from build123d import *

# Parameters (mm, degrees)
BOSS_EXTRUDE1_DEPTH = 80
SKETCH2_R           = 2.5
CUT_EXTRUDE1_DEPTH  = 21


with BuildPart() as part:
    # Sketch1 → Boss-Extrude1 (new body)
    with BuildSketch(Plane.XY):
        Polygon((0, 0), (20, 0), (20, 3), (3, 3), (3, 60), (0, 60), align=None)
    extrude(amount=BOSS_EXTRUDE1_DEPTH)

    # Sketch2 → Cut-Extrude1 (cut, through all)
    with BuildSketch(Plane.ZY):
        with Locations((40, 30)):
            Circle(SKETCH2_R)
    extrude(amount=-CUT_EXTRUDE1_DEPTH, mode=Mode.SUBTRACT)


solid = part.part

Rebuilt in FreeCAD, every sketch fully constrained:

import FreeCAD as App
import Part
import Sketcher
from FreeCAD import Vector
Q = App.Units.Quantity

doc = App.newDocument("Part")
body = doc.addObject("PartDesign::Body", "Body")

# Sketch on XY plane
sketch1 = body.newObject("Sketcher::SketchObject", "Sketch")
sketch1.AttachmentSupport = (doc.getObject("XY_Plane"), [""])
sketch1.MapMode = "FlatFace"
sketch1.addGeometry([
    Part.LineSegment(Vector(0, 0, 0), Vector(20, 0, 0)),  # 0
    Part.LineSegment(Vector(20, 0, 0), Vector(20, 3, 0)),  # 1
    Part.LineSegment(Vector(20, 3, 0), Vector(3, 3, 0)),  # 2
    Part.LineSegment(Vector(3, 3, 0), Vector(3, 60, 0)),  # 3
    Part.LineSegment(Vector(3, 60, 0), Vector(0, 60, 0)),  # 4
    Part.LineSegment(Vector(0, 60, 0), Vector(0, 0, 0)),  # 5
], False)
sketch1.addConstraint([
    Sketcher.Constraint("Coincident", 0, 2, 1, 1),
    Sketcher.Constraint("Coincident", 1, 2, 2, 1),
    Sketcher.Constraint("Coincident", 2, 2, 3, 1),
    Sketcher.Constraint("Coincident", 3, 2, 4, 1),
    Sketcher.Constraint("Coincident", 4, 2, 5, 1),
    Sketcher.Constraint("Coincident", 5, 2, 0, 1),
    Sketcher.Constraint("Horizontal", 0),
    Sketcher.Constraint("Vertical", 1),
    Sketcher.Constraint("Horizontal", 2),
    Sketcher.Constraint("Vertical", 3),
    Sketcher.Constraint("Horizontal", 4),
    Sketcher.Constraint("Vertical", 5),
    Sketcher.Constraint("Coincident", 5, 2, -1, 1),
    Sketcher.Constraint("Equal", 4, 1),
    Sketcher.Constraint("DistanceX", 0, 1, 0, 2, Q("20 mm")),
    Sketcher.Constraint("DistanceX", 2, 2, 2, 1, Q("17 mm")),
    Sketcher.Constraint("DistanceY", 3, 1, 3, 2, Q("57 mm")),
])
pad1 = body.newObject("PartDesign::Pad", "Pad")
pad1.Profile = sketch1
pad1.Length = 80

# Sketch on YZ plane
sketch2 = body.newObject("Sketcher::SketchObject", "Sketch001")
sketch2.AttachmentSupport = (doc.getObject("YZ_Plane"), [""])
sketch2.MapMode = "FlatFace"
sketch2.addGeometry(Part.Circle(Vector(30, 40, 0), Vector(0, 0, 1), 2.5), False)
sketch2.addConstraint([
    Sketcher.Constraint("Diameter", 0, Q("5 mm")),
    Sketcher.Constraint("DistanceX", -1, 1, 0, 3, Q("30 mm")),
    Sketcher.Constraint("DistanceY", -1, 1, 0, 3, Q("40 mm")),
])
pocket1 = body.newObject("PartDesign::Pocket", "Pocket")
pocket1.Profile = sketch2
pocket1.Type = "ThroughAll"
pocket1.Reversed = True

doc.recompute()
